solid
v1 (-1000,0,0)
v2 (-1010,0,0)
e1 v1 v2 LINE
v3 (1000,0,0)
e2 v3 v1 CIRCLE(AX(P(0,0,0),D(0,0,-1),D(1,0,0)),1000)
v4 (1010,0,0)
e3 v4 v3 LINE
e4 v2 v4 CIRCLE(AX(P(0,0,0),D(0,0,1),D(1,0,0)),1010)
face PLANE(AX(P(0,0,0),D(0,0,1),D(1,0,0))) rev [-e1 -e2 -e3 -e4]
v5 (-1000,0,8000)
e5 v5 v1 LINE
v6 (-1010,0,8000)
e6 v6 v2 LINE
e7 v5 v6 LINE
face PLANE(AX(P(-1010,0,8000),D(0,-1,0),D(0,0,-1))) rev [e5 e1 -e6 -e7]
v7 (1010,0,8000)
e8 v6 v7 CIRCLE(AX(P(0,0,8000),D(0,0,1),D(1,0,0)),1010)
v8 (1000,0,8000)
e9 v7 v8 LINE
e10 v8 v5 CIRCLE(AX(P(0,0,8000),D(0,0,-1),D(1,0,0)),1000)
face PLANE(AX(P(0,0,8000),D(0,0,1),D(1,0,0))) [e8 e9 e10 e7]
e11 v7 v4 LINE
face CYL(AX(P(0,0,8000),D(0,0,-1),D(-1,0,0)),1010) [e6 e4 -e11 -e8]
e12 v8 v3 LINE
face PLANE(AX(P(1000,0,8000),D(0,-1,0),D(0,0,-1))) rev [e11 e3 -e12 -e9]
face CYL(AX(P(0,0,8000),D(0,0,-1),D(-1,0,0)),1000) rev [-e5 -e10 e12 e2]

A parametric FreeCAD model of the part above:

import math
import FreeCAD as App
import Part
import Sketcher
from FreeCAD import Vector

doc = App.newDocument("Part")
params = doc.addObject("Spreadsheet::Sheet", "Params")
for row, (alias, value) in enumerate([
    ("sketch1_radius", "1010 mm"),
    ("sketch1_radius2", "1000 mm"),
    ("pad1_length", "8000 mm"),
], start=1):
    params.set(f"A{row}", alias)
    params.set(f"B{row}", "=" + value)
    params.setAlias(f"B{row}", alias)

body = doc.addObject("PartDesign::Body", "Body")

# Sketch on XY plane
sketch1 = body.newObject("Sketcher::SketchObject", "Sketch")
sketch1.AttachmentSupport = (doc.getObject("XY_Plane"), [""])
sketch1.MapMode = "FlatFace"
sketch1.addGeometry([
    Part.LineSegment(Vector(-1000, 0, 0), Vector(-1010, 0, 0)),
    Part.ArcOfCircle(Part.Circle(Vector(0, 0, 0), Vector(0, 0, 1), 1010), math.radians(180), math.radians(360)),
    Part.LineSegment(Vector(1010, 0, 0), Vector(1000, 0, 0)),
    Part.ArcOfCircle(Part.Circle(Vector(0, 0, 0), Vector(0, 0, 1), 1000), math.radians(180), math.radians(360)),
], False)
sketch1.addConstraint([
    Sketcher.Constraint("Coincident", 0, 2, 1, 1),
    Sketcher.Constraint("Coincident", 1, 2, 2, 1),
    Sketcher.Constraint("Coincident", 2, 2, 3, 2),
    Sketcher.Constraint("Coincident", 3, 1, 0, 1),
    Sketcher.Constraint("Horizontal", 0),
    Sketcher.Constraint("Horizontal", 2),
    Sketcher.Constraint("Coincident", 1, 3, -1, 1),
    Sketcher.Constraint("Coincident", 3, 3, -1, 1),
    Sketcher.Constraint("PointOnObject", 0, 2, -1),
    Sketcher.Constraint("PointOnObject", 2, 2, -1),
    Sketcher.Constraint("Radius", 1, 1010.0),
    Sketcher.Constraint("Radius", 3, 1000.0),
])
sketch1.setExpression("Constraints[10]", "Params.sketch1_radius")
sketch1.setExpression("Constraints[11]", "Params.sketch1_radius2")
pad1 = body.newObject("PartDesign::Pad", "Pad")
pad1.Profile = sketch1
pad1.setExpression("Length", "Params.pad1_length")

doc.recompute()
